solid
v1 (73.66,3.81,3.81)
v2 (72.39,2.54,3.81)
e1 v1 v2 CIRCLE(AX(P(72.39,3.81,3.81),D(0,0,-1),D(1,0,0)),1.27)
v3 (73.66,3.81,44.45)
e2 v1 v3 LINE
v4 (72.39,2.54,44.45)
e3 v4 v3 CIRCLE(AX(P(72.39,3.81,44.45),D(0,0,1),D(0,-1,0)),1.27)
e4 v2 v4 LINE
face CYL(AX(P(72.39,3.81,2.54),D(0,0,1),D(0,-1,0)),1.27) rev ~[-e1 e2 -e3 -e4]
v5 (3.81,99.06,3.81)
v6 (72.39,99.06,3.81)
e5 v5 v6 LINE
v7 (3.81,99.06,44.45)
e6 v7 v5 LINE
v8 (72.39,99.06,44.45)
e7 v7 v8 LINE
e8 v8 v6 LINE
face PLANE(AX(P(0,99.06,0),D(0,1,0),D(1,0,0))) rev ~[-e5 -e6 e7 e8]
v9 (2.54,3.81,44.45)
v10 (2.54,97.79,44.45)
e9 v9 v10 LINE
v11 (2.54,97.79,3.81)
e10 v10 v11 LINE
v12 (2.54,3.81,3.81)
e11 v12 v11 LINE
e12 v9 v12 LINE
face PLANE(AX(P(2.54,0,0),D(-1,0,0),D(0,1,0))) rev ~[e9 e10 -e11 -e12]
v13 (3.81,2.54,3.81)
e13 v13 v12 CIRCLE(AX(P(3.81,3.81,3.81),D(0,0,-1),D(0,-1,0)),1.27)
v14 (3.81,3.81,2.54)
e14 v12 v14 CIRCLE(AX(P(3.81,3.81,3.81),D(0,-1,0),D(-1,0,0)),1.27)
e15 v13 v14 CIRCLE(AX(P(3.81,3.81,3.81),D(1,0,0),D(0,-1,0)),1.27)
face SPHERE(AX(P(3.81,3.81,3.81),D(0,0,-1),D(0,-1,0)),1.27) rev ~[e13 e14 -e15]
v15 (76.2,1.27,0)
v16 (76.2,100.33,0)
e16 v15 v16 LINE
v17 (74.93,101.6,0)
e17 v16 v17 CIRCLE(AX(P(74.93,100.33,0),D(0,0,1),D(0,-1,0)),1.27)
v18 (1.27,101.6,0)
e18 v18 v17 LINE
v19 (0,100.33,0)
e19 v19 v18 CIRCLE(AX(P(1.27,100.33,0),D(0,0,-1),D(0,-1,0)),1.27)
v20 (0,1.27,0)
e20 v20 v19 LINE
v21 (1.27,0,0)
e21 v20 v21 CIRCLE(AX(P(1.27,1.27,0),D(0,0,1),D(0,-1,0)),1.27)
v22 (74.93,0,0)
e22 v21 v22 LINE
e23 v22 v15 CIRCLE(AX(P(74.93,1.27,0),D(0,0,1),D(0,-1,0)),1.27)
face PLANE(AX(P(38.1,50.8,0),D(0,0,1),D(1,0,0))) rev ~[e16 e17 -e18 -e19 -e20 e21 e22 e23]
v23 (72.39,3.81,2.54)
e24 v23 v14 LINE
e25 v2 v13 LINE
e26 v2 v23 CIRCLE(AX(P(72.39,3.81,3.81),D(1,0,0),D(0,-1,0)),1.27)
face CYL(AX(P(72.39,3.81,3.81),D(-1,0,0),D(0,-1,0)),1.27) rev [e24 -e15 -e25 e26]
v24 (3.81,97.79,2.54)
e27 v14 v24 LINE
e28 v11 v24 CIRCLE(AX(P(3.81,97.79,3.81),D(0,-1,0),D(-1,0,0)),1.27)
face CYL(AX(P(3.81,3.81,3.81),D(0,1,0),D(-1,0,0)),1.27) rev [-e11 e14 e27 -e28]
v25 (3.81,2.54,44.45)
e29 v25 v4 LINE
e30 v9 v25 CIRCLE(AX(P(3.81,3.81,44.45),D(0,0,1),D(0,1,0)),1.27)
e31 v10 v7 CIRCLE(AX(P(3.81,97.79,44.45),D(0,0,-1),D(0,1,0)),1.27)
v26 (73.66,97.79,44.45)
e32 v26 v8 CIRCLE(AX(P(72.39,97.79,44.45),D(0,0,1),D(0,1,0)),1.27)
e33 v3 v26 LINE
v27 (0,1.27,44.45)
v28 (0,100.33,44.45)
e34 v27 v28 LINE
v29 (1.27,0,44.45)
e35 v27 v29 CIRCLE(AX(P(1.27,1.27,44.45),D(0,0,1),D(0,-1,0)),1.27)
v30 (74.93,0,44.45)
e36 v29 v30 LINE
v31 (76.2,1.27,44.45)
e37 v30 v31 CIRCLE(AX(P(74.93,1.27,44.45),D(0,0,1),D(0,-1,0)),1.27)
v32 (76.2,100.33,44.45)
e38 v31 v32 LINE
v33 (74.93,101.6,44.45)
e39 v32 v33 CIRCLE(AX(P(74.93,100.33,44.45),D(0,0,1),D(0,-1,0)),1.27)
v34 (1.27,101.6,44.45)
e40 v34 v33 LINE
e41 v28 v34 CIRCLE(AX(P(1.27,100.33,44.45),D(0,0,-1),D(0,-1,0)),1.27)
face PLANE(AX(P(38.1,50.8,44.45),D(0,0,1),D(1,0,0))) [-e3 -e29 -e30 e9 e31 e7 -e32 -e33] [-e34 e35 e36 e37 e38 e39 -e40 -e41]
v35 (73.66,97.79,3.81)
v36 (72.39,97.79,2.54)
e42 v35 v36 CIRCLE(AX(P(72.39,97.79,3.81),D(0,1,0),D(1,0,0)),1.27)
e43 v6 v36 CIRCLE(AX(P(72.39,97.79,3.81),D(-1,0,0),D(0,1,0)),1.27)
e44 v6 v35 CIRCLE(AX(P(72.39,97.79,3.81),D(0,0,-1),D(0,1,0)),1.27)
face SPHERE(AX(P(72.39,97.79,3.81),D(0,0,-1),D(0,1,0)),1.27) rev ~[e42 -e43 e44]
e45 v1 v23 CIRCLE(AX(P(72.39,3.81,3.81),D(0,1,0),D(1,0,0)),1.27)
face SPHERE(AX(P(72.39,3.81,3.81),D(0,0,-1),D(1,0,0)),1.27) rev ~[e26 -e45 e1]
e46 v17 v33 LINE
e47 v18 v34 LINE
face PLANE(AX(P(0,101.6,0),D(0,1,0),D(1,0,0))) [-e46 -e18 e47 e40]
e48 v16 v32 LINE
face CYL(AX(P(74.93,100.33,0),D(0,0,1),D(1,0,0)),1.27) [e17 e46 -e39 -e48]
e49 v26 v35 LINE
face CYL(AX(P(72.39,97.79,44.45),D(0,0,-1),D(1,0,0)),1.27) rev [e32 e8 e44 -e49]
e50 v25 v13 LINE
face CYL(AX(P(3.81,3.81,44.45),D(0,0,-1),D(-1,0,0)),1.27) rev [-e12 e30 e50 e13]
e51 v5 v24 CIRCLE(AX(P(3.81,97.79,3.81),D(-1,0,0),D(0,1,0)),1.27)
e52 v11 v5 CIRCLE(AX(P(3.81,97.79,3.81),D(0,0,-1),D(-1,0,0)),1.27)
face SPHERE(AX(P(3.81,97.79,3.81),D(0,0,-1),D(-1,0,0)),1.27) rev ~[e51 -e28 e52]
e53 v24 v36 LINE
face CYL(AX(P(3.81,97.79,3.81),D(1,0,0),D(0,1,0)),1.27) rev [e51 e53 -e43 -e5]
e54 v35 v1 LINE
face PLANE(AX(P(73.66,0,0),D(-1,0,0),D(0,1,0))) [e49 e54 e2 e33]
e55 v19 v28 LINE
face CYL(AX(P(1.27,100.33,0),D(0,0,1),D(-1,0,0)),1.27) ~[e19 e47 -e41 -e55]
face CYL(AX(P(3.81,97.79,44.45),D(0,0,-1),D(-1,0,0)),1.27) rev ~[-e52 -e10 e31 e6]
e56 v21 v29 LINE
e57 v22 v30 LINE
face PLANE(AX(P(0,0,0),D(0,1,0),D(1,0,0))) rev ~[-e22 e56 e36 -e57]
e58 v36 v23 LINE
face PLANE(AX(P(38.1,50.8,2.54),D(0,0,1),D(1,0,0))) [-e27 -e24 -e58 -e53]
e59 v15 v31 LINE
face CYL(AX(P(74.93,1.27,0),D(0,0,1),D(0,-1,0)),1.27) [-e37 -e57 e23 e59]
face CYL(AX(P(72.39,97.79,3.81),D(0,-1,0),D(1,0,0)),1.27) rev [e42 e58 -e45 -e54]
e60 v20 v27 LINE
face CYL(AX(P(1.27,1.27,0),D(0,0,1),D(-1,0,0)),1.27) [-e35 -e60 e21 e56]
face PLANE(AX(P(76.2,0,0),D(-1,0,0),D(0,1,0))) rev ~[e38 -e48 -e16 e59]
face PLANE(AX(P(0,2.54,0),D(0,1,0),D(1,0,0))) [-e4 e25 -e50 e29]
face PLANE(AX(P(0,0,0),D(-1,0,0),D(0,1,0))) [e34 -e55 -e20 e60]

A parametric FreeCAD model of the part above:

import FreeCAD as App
import Part
import Sketcher

V = App.Vector
Q = App.Units.Quantity


def edges_at(feature, points):
    """Names of the edges that pass closest to the given points."""
    edges = feature.Shape.Edges
    near = lambda p: min(range(len(edges)), key=lambda i: edges[i].distToShape(Part.Vertex(*p))[0])
    return sorted({f"Edge{near(p) + 1}" for p in points})


def faces_at(feature, points):
    """Names of the faces that lie closest to the given points."""
    faces = feature.Shape.Faces
    near = lambda p: min(range(len(faces)), key=lambda i: faces[i].distToShape(Part.Vertex(*p))[0])
    return sorted({f"Face{near(p) + 1}" for p in points})


def add_polygon(sketch, points):
    """Adds a closed chain of lines whose ends are joined by coincident constraints."""
    first, n = sketch.GeometryCount, len(points)
    for a, b in zip(points, points[1:] + points[:1]):
        sketch.addGeometry(Part.LineSegment(App.Vector(*a, 0), App.Vector(*b, 0)), False)
    for i in range(n):
        sketch.addConstraint(Sketcher.Constraint("Coincident", first + i, 2, first + (i + 1) % n, 1))

doc = App.newDocument("Part")
params = doc.addObject("Spreadsheet::Sheet", "Params")
for row, (alias, value) in enumerate([
    ("sketch1_width", "3 in"),
    ("sketch1_height", "4 in"),
    ("pad1_length", "1.75 in"),
    ("thickness_wall", "0.1 in"),
    ("fillet_radius", "0.05 in"),
    ("fillet2_radius", "0.05 in"),
], start=1):
    params.set(f"A{row}", alias)
    params.set(f"B{row}", "=" + value)
    params.setAlias(f"B{row}", alias)

body = doc.addObject("PartDesign::Body", "Body")

sketch1 = doc.addObject("Sketcher::SketchObject", "Sketch")
body.addObject(sketch1)
sketch1.AttachmentSupport = (doc.XY_Plane, [""])
sketch1.MapMode = "FlatFace"
add_polygon(sketch1, [(0, 102), (0, 0), (76, 0), (76, 102)])
sketch1.addConstraint(Sketcher.Constraint("Vertical", 0))
sketch1.addConstraint(Sketcher.Constraint("Horizontal", 1))
sketch1.addConstraint(Sketcher.Constraint("Vertical", 2))
sketch1.addConstraint(Sketcher.Constraint("Horizontal", 3))
sketch1.addConstraint(Sketcher.Constraint("Coincident", 0, 2, -1, 1))
sketch1.addConstraint(Sketcher.Constraint("DistanceX", 1, 1, 1, 2, Q("3 in")))
sketch1.addConstraint(Sketcher.Constraint("DistanceY", 0, 2, 0, 1, Q("4 in")))
sketch1.setExpression("Constraints[9]", "Params.sketch1_width")
sketch1.setExpression("Constraints[10]", "Params.sketch1_height")
pad1 = doc.addObject("PartDesign::Pad", "Pad")
body.addObject(pad1)
pad1.Profile = sketch1
pad1.setExpression("Length", "Params.pad1_length")
doc.recompute()

thickness = doc.addObject("PartDesign::Thickness", "Thickness")
body.addObject(thickness)
thickness.Base = (pad1, faces_at(pad1, [(38.1, 50.8, 44.45)]))
thickness.setExpression("Value", "Params.thickness_wall")
thickness.Reversed = True
thickness.Join = "Arc"
doc.recompute()

fillet = doc.addObject("PartDesign::Fillet", "Fillet")
body.addObject(fillet)
fillet.Base = (thickness, edges_at(thickness, [
    (2.54, 2.54, 23.495),
    (2.54, 99.06, 23.495),
    (73.66, 2.54, 23.495),
    (73.66, 99.06, 23.495),
    (0, 0, 22.225),
    (0, 101.6, 22.225),
    (76.2, 0, 22.225),
    (76.2, 101.6, 22.225),
]))
fillet.setExpression("Radius", "Params.fillet_radius")
doc.recompute()

fillet2 = doc.addObject("PartDesign::Fillet", "Fillet001")
body.addObject(fillet2)
fillet2.Base = (fillet, edges_at(fillet, [
    (2.54, 50.8, 2.54),
    (2.912, 98.688, 2.54),
    (2.912, 2.912, 2.54),
    (38.1, 99.06, 2.54),
    (38.1, 2.54, 2.54),
    (73.288, 98.688, 2.54),
    (73.288, 2.912, 2.54),
    (73.66, 50.8, 2.54),
]))
fillet2.setExpression("Radius", "Params.fillet2_radius")

doc.recompute()
